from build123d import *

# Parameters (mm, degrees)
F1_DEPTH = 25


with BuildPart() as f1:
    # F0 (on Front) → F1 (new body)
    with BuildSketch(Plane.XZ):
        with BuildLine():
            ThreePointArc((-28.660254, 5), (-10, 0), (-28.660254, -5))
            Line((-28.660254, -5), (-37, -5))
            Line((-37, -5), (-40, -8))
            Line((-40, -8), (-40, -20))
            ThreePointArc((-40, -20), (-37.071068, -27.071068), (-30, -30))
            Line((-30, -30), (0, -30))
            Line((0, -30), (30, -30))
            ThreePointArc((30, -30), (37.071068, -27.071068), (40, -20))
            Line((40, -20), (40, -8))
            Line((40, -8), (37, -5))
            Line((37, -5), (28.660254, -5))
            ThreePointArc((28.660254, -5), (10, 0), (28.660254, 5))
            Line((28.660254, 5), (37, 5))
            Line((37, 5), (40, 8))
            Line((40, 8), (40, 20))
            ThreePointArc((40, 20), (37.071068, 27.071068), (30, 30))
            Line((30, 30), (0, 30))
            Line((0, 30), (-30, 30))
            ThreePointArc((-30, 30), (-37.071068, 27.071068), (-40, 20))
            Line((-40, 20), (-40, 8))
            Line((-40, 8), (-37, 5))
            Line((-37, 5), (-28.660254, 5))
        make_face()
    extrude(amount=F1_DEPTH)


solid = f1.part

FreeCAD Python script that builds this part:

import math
import FreeCAD as App
import Part
import Sketcher

V = App.Vector
Q = App.Units.Quantity

doc = App.newDocument("Part")
body = doc.addObject("PartDesign::Body", "Body")

sketch1 = body.newObject("Sketcher::SketchObject", "Sketch")
sketch1.AttachmentSupport = (doc.getObject("XZ_Plane"), [""])
sketch1.MapMode = "FlatFace"
sketch1.addGeometry([
    Part.ArcOfCircle(Part.Circle(V(-20, 0, 0), V(0, 0, 1), 10), math.radians(-150), math.radians(150)),
    Part.LineSegment(V(-28.7, -5, 0), V(-37, -5, 0)),
    Part.LineSegment(V(-37, -5, 0), V(-40, -8, 0)),
    Part.LineSegment(V(-40, -8, 0), V(-40, -20, 0)),
    Part.ArcOfCircle(Part.Circle(V(-30, -20, 0), V(0, 0, 1), 10), math.radians(180), math.radians(270)),
    Part.LineSegment(V(-30, -30, 0), V(30, -30, 0)),
    Part.ArcOfCircle(Part.Circle(V(30, -20, 0), V(0, 0, 1), 10), math.radians(-90), math.radians(0)),
    Part.LineSegment(V(40, -20, 0), V(40, -8, 0)),
    Part.LineSegment(V(40, -8, 0), V(37, -5, 0)),
    Part.LineSegment(V(37, -5, 0), V(28.7, -5, 0)),
    Part.ArcOfCircle(Part.Circle(V(20, 0, 0), V(0, 0, 1), 10), math.radians(30), math.radians(330)),
    Part.LineSegment(V(28.7, 5, 0), V(37, 5, 0)),
    Part.LineSegment(V(37, 5, 0), V(40, 8, 0)),
    Part.LineSegment(V(40, 8, 0), V(40, 20, 0)),
    Part.ArcOfCircle(Part.Circle(V(30, 20, 0), V(0, 0, 1), 10), math.radians(0), math.radians(90)),
    Part.LineSegment(V(30, 30, 0), V(-30, 30, 0)),
    Part.ArcOfCircle(Part.Circle(V(-30, 20, 0), V(0, 0, 1), 10), math.radians(90), math.radians(180)),
    Part.LineSegment(V(-40, 20, 0), V(-40, 8, 0)),
    Part.LineSegment(V(-40, 8, 0), V(-37, 5, 0)),
    Part.LineSegment(V(-37, 5, 0), V(-28.7, 5, 0)),
], False)
sketch1.addConstraint([
    Sketcher.Constraint("Coincident", 0, 1, 1, 1),
    Sketcher.Constraint("Coincident", 1, 2, 2, 1),
    Sketcher.Constraint("Coincident", 2, 2, 3, 1),
    Sketcher.Constraint("Tangent", 3, 2, 4, 1),
    Sketcher.Constraint("Tangent", 4, 2, 5, 1),
    Sketcher.Constraint("Tangent", 5, 2, 6, 1),
    Sketcher.Constraint("Tangent", 6, 2, 7, 1),
    Sketcher.Constraint("Coincident", 7, 2, 8, 1),
    Sketcher.Constraint("Coincident", 8, 2, 9, 1),
    Sketcher.Constraint("Coincident", 9, 2, 10, 2),
    Sketcher.Constraint("Coincident", 10, 1, 11, 1),
    Sketcher.Constraint("Coincident", 11, 2, 12, 1),
    Sketcher.Constraint("Coincident", 12, 2, 13, 1),
    Sketcher.Constraint("Tangent", 13, 2, 14, 1),
    Sketcher.Constraint("Tangent", 14, 2, 15, 1),
    Sketcher.Constraint("Tangent", 15, 2, 16, 1),
    Sketcher.Constraint("Tangent", 16, 2, 17, 1),
    Sketcher.Constraint("Coincident", 17, 2, 18, 1),
    Sketcher.Constraint("Coincident", 18, 2, 19, 1),
    Sketcher.Constraint("Coincident", 19, 2, 0, 2),
    Sketcher.Constraint("Horizontal", 1),
    Sketcher.Constraint("Vertical", 3),
    Sketcher.Constraint("Horizontal", 5),
    Sketcher.Constraint("Vertical", 7),
    Sketcher.Constraint("Horizontal", 9),
    Sketcher.Constraint("Horizontal", 11),
    Sketcher.Constraint("Vertical", 13),
    Sketcher.Constraint("Horizontal", 15),
    Sketcher.Constraint("Vertical", 17),
    Sketcher.Constraint("Horizontal", 19),
    Sketcher.Constraint("Equal", 0, 4),
    Sketcher.Constraint("Equal", 4, 6),
    Sketcher.Constraint("Equal", 6, 10),
    Sketcher.Constraint("Equal", 10, 14),
    Sketcher.Constraint("Equal", 14, 16),
    Sketcher.Constraint("Symmetric", 0, 3, 10, 3, -1, 1),
    Sketcher.Constraint("Symmetric", 4, 3, 14, 3, -1, 1),
    Sketcher.Constraint("Symmetric", 1, 2, 11, 2, -1, 1),
    Sketcher.Constraint("Symmetric", 7, 2, 17, 2, -1, 1),
    Sketcher.Constraint("Symmetric", 8, 2, 18, 2, -1, 1),
    Sketcher.Constraint("Symmetric", 2, 2, 7, 2, -2),
    Sketcher.Constraint("Symmetric", 1, 2, 8, 2, -2),
    Sketcher.Constraint("PointOnObject", 0, 3, -1),
    Sketcher.Constraint("Perpendicular", 2, 8),
    Sketcher.Constraint("Perpendicular", 8, 12),
    Sketcher.Constraint("Radius", 0, Q("10 mm")),
    Sketcher.Constraint("DistanceX", 5, 1, 5, 2, Q("60 mm")),
    Sketcher.Constraint("DistanceY", 3, 2, 3, 1, Q("12 mm")),
    Sketcher.Constraint("DistanceX", 0, 3, -1, 1, Q("20 mm")),
    Sketcher.Constraint("DistanceY", 4, 3, -1, 1, Q("20.000001 mm")),
    Sketcher.Constraint("DistanceY", 0, 1, -1, 1, Q("5 mm")),
])
pad1 = body.newObject("PartDesign::Pad", "Pad")
pad1.Profile = sketch1
pad1.Length = 25

doc.recompute()
